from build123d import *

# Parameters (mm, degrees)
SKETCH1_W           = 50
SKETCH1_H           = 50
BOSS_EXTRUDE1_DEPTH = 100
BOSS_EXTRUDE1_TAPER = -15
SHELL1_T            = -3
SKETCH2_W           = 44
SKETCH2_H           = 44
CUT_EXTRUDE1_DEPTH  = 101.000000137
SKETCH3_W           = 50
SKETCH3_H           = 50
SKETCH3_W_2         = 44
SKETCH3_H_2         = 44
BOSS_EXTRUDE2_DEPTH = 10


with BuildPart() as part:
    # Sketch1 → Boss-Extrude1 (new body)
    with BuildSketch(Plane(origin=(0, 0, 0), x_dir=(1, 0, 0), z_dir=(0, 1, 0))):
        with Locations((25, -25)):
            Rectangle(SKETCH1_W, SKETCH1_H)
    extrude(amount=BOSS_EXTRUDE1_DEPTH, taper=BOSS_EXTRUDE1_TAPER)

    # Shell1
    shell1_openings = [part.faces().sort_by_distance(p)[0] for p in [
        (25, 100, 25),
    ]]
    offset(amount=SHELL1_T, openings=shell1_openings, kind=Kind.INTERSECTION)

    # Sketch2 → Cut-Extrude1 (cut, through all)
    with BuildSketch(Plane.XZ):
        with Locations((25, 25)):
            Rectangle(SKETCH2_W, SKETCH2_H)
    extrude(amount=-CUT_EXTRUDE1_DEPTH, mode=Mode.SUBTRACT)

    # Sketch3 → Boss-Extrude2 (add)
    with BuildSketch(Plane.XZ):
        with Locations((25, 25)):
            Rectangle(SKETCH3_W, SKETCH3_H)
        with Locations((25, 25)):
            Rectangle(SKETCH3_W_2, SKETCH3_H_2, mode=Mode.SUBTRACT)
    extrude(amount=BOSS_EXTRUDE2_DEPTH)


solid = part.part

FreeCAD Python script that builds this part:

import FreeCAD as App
import Part
import Sketcher
from FreeCAD import Vector
Q = App.Units.Quantity


def faces_at(feature, points):
    """Names of the faces that lie closest to the given points."""
    faces = feature.Shape.Faces
    near = lambda p: min(range(len(faces)), key=lambda i: faces[i].distToShape(Part.Vertex(*p))[0])
    return sorted({f"Face{near(p) + 1}" for p in points})


def add_polygon(sketch, points):
    """Adds a closed chain of lines whose ends are joined by coincident constraints."""
    first, n = sketch.GeometryCount, len(points)
    for a, b in zip(points, points[1:] + points[:1]):
        sketch.addGeometry(Part.LineSegment(App.Vector(*a, 0), App.Vector(*b, 0)), False)
    for i in range(n):
        sketch.addConstraint(Sketcher.Constraint("Coincident", first + i, 2, first + (i + 1) % n, 1))

doc = App.newDocument("Part")
body = doc.addObject("PartDesign::Body", "Body")

# Sketch on XZ plane
sketch1 = body.newObject("Sketcher::SketchObject", "Sketch")
sketch1.AttachmentSupport = (doc.getObject("XZ_Plane"), [""])
sketch1.MapMode = "FlatFace"
add_polygon(sketch1, [(0, 0), (0, 50), (50, 50), (50, 0)])  # lines 0-3
sketch1.addConstraint([
    Sketcher.Constraint("Vertical", 0),
    Sketcher.Constraint("Horizontal", 1),
    Sketcher.Constraint("Vertical", 2),
    Sketcher.Constraint("Horizontal", 3),
    Sketcher.Constraint("Coincident", 3, 2, -1, 1),
    Sketcher.Constraint("Equal", 3, 0),
    Sketcher.Constraint("DistanceX", 1, 1, 1, 2, Q("50 mm")),
])
pad1 = body.newObject("PartDesign::Pad", "Pad")
pad1.Profile = sketch1
pad1.Length = 100
pad1.Reversed = True
pad1.TaperAngle = 15
doc.recompute()

thickness = body.newObject("PartDesign::Thickness", "Thickness")
thickness.Base = (pad1, faces_at(pad1, [(25, 100, 25)]))
thickness.Value = 3
thickness.Reversed = True
thickness.Join = "Intersection"

# Sketch on XZ plane
sketch2 = body.newObject("Sketcher::SketchObject", "Sketch001")
sketch2.AttachmentSupport = (doc.getObject("XZ_Plane"), [""])
sketch2.MapMode = "FlatFace"
add_polygon(sketch2, [(3, 47), (3, 3), (47, 3), (47, 47)])  # lines 0-3
sketch2.addConstraint([
    Sketcher.Constraint("Vertical", 0),
    Sketcher.Constraint("Horizontal", 1),
    Sketcher.Constraint("Vertical", 2),
    Sketcher.Constraint("Horizontal", 3),
    Sketcher.Constraint("Equal", 3, 0),
    Sketcher.Constraint("DistanceX", 1, 1, 1, 2, Q("44 mm")),
    Sketcher.Constraint("DistanceX", -1, 1, 0, 2, Q("3 mm")),
    Sketcher.Constraint("DistanceY", -1, 1, 0, 2, Q("3 mm")),
])
pocket1 = body.newObject("PartDesign::Pocket", "Pocket")
pocket1.Profile = sketch2
pocket1.Type = "ThroughAll"

# Sketch on XZ plane
sketch3 = body.newObject("Sketcher::SketchObject", "Sketch002")
sketch3.AttachmentSupport = (doc.getObject("XZ_Plane"), [""])
sketch3.MapMode = "FlatFace"
add_polygon(sketch3, [(0, 50), (0, 0), (50, 0), (50, 50)])  # lines 0-3
add_polygon(sketch3, [(47, 3), (3, 3), (3, 47), (47, 47)])  # lines 4-7
sketch3.addConstraint([
    Sketcher.Constraint("Vertical", 0),
    Sketcher.Constraint("Horizontal", 1),
    Sketcher.Constraint("Vertical", 2),
    Sketcher.Constraint("Horizontal", 3),
    Sketcher.Constraint("Horizontal", 4),
    Sketcher.Constraint("Vertical", 5),
    Sketcher.Constraint("Horizontal", 6),
    Sketcher.Constraint("Vertical", 7),
    Sketcher.Constraint("Coincident", 0, 2, -1, 1),
    Sketcher.Constraint("Equal", 3, 0),
    Sketcher.Constraint("Equal", 6, 5),
    Sketcher.Constraint("DistanceX", 1, 1, 1, 2, Q("50 mm")),
    Sketcher.Constraint("DistanceX", 4, 2, 4, 1, Q("44 mm")),
    Sketcher.Constraint("DistanceX", -1, 1, 4, 2, Q("3 mm")),
    Sketcher.Constraint("DistanceY", -1, 1, 4, 2, Q("3 mm")),
])
pad2 = body.newObject("PartDesign::Pad", "Pad001")
pad2.Profile = sketch3
pad2.Length = 10

doc.recompute()
